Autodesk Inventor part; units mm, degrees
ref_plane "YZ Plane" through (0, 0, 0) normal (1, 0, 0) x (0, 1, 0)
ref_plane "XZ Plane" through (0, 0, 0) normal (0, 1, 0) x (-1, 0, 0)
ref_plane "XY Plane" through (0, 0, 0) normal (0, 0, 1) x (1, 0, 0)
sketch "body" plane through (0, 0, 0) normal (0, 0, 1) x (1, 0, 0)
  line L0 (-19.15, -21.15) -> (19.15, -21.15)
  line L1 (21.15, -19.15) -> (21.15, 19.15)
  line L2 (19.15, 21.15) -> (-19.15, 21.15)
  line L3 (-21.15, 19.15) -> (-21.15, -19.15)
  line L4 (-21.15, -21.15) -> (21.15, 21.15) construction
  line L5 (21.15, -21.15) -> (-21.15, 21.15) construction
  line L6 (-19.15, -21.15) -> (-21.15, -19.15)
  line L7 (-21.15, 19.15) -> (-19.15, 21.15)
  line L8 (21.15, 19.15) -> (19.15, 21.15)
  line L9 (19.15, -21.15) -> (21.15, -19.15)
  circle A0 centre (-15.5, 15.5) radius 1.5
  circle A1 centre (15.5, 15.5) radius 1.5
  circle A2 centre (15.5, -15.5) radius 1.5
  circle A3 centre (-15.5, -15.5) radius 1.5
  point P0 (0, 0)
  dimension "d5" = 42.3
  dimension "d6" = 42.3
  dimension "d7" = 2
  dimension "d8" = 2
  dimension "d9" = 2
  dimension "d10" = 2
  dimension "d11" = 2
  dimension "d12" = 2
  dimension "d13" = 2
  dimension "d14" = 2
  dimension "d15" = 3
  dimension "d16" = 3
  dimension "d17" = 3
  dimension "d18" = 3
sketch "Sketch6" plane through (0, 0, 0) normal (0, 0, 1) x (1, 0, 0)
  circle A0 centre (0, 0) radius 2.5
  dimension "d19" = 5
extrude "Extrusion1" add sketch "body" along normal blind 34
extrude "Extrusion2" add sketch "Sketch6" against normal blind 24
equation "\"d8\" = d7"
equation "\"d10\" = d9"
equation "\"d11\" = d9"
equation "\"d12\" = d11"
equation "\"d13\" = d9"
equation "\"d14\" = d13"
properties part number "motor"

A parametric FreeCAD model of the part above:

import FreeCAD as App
import Part
import Sketcher
from FreeCAD import Vector
Q = App.Units.Quantity

doc = App.newDocument("Part")
body = doc.addObject("PartDesign::Body", "Body")

sketch1 = body.newObject("Sketcher::SketchObject", "Sketch")
sketch1.AttachmentSupport = (doc.getObject("XY_Plane"), [""])
sketch1.MapMode = "FlatFace"
sketch1.addGeometry(Part.LineSegment(Vector(-21.15, -19.15, 0), Vector(-19.15, -21.15, 0)), False)
sketch1.addGeometry(Part.LineSegment(Vector(-19.15, -21.15, 0), Vector(19.15, -21.15, 0)), False)
sketch1.addGeometry(Part.LineSegment(Vector(19.15, -21.15, 0), Vector(21.15, -19.15, 0)), False)
sketch1.addGeometry(Part.LineSegment(Vector(21.15, -19.15, 0), Vector(21.15, 19.15, 0)), False)
sketch1.addGeometry(Part.LineSegment(Vector(21.15, 19.15, 0), Vector(19.15, 21.15, 0)), False)
sketch1.addGeometry(Part.LineSegment(Vector(19.15, 21.15, 0), Vector(-19.15, 21.15, 0)), False)
sketch1.addGeometry(Part.LineSegment(Vector(-19.15, 21.15, 0), Vector(-21.15, 19.15, 0)), False)
sketch1.addGeometry(Part.LineSegment(Vector(-21.15, 19.15, 0), Vector(-21.15, -19.15, 0)), False)
sketch1.addGeometry(Part.Circle(Vector(-15.5, -15.5, 0), Vector(0, 0, 1), 1.5), False)
sketch1.addGeometry(Part.Circle(Vector(15.5, -15.5, 0), Vector(0, 0, 1), 1.5), False)
sketch1.addGeometry(Part.Circle(Vector(-15.5, 15.5, 0), Vector(0, 0, 1), 1.5), False)
sketch1.addGeometry(Part.Circle(Vector(15.5, 15.5, 0), Vector(0, 0, 1), 1.5), False)
sketch1.addConstraint(Sketcher.Constraint("Coincident", 0, 2, 1, 1))
sketch1.addConstraint(Sketcher.Constraint("Coincident", 1, 2, 2, 1))
sketch1.addConstraint(Sketcher.Constraint("Coincident", 2, 2, 3, 1))
sketch1.addConstraint(Sketcher.Constraint("Coincident", 3, 2, 4, 1))
sketch1.addConstraint(Sketcher.Constraint("Coincident", 4, 2, 5, 1))
sketch1.addConstraint(Sketcher.Constraint("Coincident", 5, 2, 6, 1))
sketch1.addConstraint(Sketcher.Constraint("Coincident", 6, 2, 7, 1))
sketch1.addConstraint(Sketcher.Constraint("Coincident", 7, 2, 0, 1))
sketch1.addConstraint(Sketcher.Constraint("Horizontal", 1))
sketch1.addConstraint(Sketcher.Constraint("Vertical", 3))
sketch1.addConstraint(Sketcher.Constraint("Horizontal", 5))
sketch1.addConstraint(Sketcher.Constraint("Vertical", 7))
sketch1.addConstraint(Sketcher.Constraint("Equal", 8, 9))
sketch1.addConstraint(Sketcher.Constraint("Equal", 9, 10))
sketch1.addConstraint(Sketcher.Constraint("Equal", 10, 11))
sketch1.addConstraint(Sketcher.Constraint("Symmetric", 9, 3, 10, 3, -1, 1))
sketch1.addConstraint(Sketcher.Constraint("Symmetric", 8, 3, 11, 3, -1, 1))
sketch1.addConstraint(Sketcher.Constraint("Symmetric", 0, 2, 4, 2, -1, 1))
sketch1.addConstraint(Sketcher.Constraint("Symmetric", 2, 2, 6, 2, -1, 1))
sketch1.addConstraint(Sketcher.Constraint("Symmetric", 8, 3, 9, 3, -2))
sketch1.addConstraint(Sketcher.Constraint("Perpendicular", 0, 2))
sketch1.addConstraint(Sketcher.Constraint("Perpendicular", 2, 4))
sketch1.addConstraint(Sketcher.Constraint("Perpendicular", 4, 6))
sketch1.addConstraint(Sketcher.Constraint("Horizontal", 3, 2, 6, 2))
sketch1.addConstraint(Sketcher.Constraint("Vertical", 1, 2, 4, 2))
sketch1.addConstraint(Sketcher.Constraint("Equal", 5, 3))
sketch1.addConstraint(Sketcher.Constraint("Diameter", 8, Q("3 mm")))
sketch1.addConstraint(Sketcher.Constraint("DistanceX", 1, 2, 2, 2, Q("2 mm")))
sketch1.addConstraint(Sketcher.Constraint("DistanceX", 1, 1, 1, 2, Q("38.3 mm")))
sketch1.addConstraint(Sketcher.Constraint("DistanceX", 8, 3, 9, 3, Q("31 mm")))
sketch1.addConstraint(Sketcher.Constraint("DistanceY", 8, 3, 10, 3, Q("31 mm")))
pad1 = body.newObject("PartDesign::Pad", "Pad")
pad1.Profile = sketch1
pad1.Length = 34

sketch2 = body.newObject("Sketcher::SketchObject", "Sketch001")
sketch2.AttachmentSupport = (doc.getObject("XY_Plane"), [""])
sketch2.MapMode = "FlatFace"
sketch2.addGeometry(Part.Circle(Vector(0, 0, 0), Vector(0, 0, 1), 2.5), False)
sketch2.addConstraint(Sketcher.Constraint("Coincident", 0, 3, -1, 1))
sketch2.addConstraint(Sketcher.Constraint("Diameter", 0, Q("5 mm")))
pad2 = body.newObject("PartDesign::Pad", "Pad001")
pad2.Profile = sketch2
pad2.Length = 24
pad2.Reversed = True

doc.recompute()
